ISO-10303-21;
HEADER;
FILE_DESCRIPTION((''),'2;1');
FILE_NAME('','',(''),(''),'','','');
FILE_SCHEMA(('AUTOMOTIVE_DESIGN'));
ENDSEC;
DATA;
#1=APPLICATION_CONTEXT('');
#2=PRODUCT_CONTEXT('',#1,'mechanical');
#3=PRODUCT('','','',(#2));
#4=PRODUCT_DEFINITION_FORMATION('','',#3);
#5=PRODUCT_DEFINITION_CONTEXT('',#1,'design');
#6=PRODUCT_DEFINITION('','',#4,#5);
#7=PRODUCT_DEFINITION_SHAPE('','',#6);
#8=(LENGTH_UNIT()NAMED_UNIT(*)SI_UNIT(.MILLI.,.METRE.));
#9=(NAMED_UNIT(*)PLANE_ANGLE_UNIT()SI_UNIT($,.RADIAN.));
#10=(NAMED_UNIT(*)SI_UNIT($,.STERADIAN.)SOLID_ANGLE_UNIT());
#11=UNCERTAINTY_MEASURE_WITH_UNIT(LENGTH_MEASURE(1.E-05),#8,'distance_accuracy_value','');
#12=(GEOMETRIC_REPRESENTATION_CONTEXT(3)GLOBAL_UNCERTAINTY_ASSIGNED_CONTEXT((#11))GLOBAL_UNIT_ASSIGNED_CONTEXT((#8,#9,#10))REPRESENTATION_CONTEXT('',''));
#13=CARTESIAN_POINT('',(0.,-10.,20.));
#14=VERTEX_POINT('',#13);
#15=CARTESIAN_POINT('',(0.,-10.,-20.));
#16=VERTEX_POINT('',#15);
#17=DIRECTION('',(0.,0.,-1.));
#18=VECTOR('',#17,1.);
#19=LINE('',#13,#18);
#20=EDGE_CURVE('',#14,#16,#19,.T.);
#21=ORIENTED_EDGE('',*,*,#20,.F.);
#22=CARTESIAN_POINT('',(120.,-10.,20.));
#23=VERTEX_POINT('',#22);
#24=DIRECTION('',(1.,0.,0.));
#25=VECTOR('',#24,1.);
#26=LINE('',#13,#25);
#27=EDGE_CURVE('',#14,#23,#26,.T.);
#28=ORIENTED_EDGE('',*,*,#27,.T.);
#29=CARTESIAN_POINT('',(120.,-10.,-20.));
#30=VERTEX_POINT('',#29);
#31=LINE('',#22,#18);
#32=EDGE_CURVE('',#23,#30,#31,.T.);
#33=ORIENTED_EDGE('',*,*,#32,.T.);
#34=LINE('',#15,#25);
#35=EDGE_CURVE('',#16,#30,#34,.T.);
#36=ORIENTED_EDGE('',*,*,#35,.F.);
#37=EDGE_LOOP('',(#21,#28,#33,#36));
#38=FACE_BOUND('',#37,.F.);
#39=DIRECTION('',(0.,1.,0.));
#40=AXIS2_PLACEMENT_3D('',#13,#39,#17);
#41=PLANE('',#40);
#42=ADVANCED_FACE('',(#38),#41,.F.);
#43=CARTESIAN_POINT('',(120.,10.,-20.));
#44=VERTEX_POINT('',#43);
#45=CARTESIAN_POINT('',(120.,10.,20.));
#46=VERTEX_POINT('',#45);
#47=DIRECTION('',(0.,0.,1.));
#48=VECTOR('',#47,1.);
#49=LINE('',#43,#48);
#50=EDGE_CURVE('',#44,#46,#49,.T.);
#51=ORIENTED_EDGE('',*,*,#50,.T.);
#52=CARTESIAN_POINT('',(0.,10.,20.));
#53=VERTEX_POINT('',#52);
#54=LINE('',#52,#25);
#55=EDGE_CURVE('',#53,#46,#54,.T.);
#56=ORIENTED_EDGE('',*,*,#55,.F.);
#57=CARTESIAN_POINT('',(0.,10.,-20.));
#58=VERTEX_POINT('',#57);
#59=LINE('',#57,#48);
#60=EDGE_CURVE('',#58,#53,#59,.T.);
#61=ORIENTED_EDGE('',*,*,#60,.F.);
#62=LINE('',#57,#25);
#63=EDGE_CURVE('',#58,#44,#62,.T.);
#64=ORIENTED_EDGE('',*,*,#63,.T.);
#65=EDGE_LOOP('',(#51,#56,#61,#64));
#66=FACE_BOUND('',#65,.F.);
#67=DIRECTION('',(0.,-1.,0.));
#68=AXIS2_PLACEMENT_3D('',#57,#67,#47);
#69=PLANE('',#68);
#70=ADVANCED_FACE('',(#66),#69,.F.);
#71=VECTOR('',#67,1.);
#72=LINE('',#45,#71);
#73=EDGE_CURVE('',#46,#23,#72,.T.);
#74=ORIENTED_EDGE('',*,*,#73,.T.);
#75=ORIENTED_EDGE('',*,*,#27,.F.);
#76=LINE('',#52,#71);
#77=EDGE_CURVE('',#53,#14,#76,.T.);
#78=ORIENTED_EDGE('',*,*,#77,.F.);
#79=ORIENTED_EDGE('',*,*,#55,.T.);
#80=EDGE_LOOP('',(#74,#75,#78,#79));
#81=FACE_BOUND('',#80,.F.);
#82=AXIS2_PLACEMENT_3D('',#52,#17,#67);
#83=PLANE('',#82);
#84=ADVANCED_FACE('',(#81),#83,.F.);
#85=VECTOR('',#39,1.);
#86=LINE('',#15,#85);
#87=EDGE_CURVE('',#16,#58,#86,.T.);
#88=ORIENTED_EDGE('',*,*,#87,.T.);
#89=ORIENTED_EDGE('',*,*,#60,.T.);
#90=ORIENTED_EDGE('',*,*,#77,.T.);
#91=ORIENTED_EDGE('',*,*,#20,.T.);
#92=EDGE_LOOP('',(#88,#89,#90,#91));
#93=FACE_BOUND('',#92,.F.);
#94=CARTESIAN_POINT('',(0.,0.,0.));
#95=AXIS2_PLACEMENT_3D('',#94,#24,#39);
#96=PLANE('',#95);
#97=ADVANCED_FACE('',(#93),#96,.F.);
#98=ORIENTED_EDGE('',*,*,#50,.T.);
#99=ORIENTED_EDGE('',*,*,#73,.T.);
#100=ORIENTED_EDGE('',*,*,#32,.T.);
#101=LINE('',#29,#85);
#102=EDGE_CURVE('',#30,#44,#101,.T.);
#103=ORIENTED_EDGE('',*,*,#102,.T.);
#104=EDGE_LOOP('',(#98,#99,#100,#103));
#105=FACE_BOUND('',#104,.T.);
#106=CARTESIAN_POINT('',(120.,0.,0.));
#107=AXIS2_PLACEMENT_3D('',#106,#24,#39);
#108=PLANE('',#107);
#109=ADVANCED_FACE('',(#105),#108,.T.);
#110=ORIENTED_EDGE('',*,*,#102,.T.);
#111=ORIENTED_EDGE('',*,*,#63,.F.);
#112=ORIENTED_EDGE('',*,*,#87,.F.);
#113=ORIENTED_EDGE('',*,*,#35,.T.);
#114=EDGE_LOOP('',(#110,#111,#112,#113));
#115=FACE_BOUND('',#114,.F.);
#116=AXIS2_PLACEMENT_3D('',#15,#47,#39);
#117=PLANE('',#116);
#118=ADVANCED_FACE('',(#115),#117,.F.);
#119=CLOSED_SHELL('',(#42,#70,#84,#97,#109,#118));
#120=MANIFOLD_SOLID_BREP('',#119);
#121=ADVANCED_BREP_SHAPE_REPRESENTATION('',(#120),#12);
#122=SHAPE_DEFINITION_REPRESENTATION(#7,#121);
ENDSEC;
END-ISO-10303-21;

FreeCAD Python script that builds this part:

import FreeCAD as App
import Part
import Sketcher

doc = App.newDocument("Part")
body = doc.addObject("PartDesign::Body", "Body")

# Sketch on YZ plane
sketch1 = doc.addObject("Sketcher::SketchObject", "Sketch")
body.addObject(sketch1)
sketch1.AttachmentSupport = (doc.YZ_Plane, [""])
sketch1.MapMode = "FlatFace"
sketch1.addGeometry([
    Part.LineSegment(App.Vector(-10, 20, 0), App.Vector(-10, -20, 0)),
    Part.LineSegment(App.Vector(-10, -20, 0), App.Vector(10, -20, 0)),
    Part.LineSegment(App.Vector(10, -20, 0), App.Vector(10, 20, 0)),
    Part.LineSegment(App.Vector(10, 20, 0), App.Vector(-10, 20, 0)),
], False)
sketch1.addConstraint([
    Sketcher.Constraint("Coincident", 0, 2, 1, 1),
    Sketcher.Constraint("Coincident", 1, 2, 2, 1),
    Sketcher.Constraint("Coincident", 2, 2, 3, 1),
    Sketcher.Constraint("Coincident", 3, 2, 0, 1),
    Sketcher.Constraint("Vertical", 0),
    Sketcher.Constraint("Horizontal", 1),
    Sketcher.Constraint("Vertical", 2),
    Sketcher.Constraint("Horizontal", 3),
    Sketcher.Constraint("Symmetric", 0, 2, 2, 2, -1, 1),
    Sketcher.Constraint("DistanceX", 1, 1, 1, 2, 20.0),
    Sketcher.Constraint("DistanceY", 0, 2, 0, 1, 40.0),
])
pad1 = doc.addObject("PartDesign::Pad", "Pad")
body.addObject(pad1)
pad1.Profile = sketch1
pad1.Length = 120

doc.recompute()
